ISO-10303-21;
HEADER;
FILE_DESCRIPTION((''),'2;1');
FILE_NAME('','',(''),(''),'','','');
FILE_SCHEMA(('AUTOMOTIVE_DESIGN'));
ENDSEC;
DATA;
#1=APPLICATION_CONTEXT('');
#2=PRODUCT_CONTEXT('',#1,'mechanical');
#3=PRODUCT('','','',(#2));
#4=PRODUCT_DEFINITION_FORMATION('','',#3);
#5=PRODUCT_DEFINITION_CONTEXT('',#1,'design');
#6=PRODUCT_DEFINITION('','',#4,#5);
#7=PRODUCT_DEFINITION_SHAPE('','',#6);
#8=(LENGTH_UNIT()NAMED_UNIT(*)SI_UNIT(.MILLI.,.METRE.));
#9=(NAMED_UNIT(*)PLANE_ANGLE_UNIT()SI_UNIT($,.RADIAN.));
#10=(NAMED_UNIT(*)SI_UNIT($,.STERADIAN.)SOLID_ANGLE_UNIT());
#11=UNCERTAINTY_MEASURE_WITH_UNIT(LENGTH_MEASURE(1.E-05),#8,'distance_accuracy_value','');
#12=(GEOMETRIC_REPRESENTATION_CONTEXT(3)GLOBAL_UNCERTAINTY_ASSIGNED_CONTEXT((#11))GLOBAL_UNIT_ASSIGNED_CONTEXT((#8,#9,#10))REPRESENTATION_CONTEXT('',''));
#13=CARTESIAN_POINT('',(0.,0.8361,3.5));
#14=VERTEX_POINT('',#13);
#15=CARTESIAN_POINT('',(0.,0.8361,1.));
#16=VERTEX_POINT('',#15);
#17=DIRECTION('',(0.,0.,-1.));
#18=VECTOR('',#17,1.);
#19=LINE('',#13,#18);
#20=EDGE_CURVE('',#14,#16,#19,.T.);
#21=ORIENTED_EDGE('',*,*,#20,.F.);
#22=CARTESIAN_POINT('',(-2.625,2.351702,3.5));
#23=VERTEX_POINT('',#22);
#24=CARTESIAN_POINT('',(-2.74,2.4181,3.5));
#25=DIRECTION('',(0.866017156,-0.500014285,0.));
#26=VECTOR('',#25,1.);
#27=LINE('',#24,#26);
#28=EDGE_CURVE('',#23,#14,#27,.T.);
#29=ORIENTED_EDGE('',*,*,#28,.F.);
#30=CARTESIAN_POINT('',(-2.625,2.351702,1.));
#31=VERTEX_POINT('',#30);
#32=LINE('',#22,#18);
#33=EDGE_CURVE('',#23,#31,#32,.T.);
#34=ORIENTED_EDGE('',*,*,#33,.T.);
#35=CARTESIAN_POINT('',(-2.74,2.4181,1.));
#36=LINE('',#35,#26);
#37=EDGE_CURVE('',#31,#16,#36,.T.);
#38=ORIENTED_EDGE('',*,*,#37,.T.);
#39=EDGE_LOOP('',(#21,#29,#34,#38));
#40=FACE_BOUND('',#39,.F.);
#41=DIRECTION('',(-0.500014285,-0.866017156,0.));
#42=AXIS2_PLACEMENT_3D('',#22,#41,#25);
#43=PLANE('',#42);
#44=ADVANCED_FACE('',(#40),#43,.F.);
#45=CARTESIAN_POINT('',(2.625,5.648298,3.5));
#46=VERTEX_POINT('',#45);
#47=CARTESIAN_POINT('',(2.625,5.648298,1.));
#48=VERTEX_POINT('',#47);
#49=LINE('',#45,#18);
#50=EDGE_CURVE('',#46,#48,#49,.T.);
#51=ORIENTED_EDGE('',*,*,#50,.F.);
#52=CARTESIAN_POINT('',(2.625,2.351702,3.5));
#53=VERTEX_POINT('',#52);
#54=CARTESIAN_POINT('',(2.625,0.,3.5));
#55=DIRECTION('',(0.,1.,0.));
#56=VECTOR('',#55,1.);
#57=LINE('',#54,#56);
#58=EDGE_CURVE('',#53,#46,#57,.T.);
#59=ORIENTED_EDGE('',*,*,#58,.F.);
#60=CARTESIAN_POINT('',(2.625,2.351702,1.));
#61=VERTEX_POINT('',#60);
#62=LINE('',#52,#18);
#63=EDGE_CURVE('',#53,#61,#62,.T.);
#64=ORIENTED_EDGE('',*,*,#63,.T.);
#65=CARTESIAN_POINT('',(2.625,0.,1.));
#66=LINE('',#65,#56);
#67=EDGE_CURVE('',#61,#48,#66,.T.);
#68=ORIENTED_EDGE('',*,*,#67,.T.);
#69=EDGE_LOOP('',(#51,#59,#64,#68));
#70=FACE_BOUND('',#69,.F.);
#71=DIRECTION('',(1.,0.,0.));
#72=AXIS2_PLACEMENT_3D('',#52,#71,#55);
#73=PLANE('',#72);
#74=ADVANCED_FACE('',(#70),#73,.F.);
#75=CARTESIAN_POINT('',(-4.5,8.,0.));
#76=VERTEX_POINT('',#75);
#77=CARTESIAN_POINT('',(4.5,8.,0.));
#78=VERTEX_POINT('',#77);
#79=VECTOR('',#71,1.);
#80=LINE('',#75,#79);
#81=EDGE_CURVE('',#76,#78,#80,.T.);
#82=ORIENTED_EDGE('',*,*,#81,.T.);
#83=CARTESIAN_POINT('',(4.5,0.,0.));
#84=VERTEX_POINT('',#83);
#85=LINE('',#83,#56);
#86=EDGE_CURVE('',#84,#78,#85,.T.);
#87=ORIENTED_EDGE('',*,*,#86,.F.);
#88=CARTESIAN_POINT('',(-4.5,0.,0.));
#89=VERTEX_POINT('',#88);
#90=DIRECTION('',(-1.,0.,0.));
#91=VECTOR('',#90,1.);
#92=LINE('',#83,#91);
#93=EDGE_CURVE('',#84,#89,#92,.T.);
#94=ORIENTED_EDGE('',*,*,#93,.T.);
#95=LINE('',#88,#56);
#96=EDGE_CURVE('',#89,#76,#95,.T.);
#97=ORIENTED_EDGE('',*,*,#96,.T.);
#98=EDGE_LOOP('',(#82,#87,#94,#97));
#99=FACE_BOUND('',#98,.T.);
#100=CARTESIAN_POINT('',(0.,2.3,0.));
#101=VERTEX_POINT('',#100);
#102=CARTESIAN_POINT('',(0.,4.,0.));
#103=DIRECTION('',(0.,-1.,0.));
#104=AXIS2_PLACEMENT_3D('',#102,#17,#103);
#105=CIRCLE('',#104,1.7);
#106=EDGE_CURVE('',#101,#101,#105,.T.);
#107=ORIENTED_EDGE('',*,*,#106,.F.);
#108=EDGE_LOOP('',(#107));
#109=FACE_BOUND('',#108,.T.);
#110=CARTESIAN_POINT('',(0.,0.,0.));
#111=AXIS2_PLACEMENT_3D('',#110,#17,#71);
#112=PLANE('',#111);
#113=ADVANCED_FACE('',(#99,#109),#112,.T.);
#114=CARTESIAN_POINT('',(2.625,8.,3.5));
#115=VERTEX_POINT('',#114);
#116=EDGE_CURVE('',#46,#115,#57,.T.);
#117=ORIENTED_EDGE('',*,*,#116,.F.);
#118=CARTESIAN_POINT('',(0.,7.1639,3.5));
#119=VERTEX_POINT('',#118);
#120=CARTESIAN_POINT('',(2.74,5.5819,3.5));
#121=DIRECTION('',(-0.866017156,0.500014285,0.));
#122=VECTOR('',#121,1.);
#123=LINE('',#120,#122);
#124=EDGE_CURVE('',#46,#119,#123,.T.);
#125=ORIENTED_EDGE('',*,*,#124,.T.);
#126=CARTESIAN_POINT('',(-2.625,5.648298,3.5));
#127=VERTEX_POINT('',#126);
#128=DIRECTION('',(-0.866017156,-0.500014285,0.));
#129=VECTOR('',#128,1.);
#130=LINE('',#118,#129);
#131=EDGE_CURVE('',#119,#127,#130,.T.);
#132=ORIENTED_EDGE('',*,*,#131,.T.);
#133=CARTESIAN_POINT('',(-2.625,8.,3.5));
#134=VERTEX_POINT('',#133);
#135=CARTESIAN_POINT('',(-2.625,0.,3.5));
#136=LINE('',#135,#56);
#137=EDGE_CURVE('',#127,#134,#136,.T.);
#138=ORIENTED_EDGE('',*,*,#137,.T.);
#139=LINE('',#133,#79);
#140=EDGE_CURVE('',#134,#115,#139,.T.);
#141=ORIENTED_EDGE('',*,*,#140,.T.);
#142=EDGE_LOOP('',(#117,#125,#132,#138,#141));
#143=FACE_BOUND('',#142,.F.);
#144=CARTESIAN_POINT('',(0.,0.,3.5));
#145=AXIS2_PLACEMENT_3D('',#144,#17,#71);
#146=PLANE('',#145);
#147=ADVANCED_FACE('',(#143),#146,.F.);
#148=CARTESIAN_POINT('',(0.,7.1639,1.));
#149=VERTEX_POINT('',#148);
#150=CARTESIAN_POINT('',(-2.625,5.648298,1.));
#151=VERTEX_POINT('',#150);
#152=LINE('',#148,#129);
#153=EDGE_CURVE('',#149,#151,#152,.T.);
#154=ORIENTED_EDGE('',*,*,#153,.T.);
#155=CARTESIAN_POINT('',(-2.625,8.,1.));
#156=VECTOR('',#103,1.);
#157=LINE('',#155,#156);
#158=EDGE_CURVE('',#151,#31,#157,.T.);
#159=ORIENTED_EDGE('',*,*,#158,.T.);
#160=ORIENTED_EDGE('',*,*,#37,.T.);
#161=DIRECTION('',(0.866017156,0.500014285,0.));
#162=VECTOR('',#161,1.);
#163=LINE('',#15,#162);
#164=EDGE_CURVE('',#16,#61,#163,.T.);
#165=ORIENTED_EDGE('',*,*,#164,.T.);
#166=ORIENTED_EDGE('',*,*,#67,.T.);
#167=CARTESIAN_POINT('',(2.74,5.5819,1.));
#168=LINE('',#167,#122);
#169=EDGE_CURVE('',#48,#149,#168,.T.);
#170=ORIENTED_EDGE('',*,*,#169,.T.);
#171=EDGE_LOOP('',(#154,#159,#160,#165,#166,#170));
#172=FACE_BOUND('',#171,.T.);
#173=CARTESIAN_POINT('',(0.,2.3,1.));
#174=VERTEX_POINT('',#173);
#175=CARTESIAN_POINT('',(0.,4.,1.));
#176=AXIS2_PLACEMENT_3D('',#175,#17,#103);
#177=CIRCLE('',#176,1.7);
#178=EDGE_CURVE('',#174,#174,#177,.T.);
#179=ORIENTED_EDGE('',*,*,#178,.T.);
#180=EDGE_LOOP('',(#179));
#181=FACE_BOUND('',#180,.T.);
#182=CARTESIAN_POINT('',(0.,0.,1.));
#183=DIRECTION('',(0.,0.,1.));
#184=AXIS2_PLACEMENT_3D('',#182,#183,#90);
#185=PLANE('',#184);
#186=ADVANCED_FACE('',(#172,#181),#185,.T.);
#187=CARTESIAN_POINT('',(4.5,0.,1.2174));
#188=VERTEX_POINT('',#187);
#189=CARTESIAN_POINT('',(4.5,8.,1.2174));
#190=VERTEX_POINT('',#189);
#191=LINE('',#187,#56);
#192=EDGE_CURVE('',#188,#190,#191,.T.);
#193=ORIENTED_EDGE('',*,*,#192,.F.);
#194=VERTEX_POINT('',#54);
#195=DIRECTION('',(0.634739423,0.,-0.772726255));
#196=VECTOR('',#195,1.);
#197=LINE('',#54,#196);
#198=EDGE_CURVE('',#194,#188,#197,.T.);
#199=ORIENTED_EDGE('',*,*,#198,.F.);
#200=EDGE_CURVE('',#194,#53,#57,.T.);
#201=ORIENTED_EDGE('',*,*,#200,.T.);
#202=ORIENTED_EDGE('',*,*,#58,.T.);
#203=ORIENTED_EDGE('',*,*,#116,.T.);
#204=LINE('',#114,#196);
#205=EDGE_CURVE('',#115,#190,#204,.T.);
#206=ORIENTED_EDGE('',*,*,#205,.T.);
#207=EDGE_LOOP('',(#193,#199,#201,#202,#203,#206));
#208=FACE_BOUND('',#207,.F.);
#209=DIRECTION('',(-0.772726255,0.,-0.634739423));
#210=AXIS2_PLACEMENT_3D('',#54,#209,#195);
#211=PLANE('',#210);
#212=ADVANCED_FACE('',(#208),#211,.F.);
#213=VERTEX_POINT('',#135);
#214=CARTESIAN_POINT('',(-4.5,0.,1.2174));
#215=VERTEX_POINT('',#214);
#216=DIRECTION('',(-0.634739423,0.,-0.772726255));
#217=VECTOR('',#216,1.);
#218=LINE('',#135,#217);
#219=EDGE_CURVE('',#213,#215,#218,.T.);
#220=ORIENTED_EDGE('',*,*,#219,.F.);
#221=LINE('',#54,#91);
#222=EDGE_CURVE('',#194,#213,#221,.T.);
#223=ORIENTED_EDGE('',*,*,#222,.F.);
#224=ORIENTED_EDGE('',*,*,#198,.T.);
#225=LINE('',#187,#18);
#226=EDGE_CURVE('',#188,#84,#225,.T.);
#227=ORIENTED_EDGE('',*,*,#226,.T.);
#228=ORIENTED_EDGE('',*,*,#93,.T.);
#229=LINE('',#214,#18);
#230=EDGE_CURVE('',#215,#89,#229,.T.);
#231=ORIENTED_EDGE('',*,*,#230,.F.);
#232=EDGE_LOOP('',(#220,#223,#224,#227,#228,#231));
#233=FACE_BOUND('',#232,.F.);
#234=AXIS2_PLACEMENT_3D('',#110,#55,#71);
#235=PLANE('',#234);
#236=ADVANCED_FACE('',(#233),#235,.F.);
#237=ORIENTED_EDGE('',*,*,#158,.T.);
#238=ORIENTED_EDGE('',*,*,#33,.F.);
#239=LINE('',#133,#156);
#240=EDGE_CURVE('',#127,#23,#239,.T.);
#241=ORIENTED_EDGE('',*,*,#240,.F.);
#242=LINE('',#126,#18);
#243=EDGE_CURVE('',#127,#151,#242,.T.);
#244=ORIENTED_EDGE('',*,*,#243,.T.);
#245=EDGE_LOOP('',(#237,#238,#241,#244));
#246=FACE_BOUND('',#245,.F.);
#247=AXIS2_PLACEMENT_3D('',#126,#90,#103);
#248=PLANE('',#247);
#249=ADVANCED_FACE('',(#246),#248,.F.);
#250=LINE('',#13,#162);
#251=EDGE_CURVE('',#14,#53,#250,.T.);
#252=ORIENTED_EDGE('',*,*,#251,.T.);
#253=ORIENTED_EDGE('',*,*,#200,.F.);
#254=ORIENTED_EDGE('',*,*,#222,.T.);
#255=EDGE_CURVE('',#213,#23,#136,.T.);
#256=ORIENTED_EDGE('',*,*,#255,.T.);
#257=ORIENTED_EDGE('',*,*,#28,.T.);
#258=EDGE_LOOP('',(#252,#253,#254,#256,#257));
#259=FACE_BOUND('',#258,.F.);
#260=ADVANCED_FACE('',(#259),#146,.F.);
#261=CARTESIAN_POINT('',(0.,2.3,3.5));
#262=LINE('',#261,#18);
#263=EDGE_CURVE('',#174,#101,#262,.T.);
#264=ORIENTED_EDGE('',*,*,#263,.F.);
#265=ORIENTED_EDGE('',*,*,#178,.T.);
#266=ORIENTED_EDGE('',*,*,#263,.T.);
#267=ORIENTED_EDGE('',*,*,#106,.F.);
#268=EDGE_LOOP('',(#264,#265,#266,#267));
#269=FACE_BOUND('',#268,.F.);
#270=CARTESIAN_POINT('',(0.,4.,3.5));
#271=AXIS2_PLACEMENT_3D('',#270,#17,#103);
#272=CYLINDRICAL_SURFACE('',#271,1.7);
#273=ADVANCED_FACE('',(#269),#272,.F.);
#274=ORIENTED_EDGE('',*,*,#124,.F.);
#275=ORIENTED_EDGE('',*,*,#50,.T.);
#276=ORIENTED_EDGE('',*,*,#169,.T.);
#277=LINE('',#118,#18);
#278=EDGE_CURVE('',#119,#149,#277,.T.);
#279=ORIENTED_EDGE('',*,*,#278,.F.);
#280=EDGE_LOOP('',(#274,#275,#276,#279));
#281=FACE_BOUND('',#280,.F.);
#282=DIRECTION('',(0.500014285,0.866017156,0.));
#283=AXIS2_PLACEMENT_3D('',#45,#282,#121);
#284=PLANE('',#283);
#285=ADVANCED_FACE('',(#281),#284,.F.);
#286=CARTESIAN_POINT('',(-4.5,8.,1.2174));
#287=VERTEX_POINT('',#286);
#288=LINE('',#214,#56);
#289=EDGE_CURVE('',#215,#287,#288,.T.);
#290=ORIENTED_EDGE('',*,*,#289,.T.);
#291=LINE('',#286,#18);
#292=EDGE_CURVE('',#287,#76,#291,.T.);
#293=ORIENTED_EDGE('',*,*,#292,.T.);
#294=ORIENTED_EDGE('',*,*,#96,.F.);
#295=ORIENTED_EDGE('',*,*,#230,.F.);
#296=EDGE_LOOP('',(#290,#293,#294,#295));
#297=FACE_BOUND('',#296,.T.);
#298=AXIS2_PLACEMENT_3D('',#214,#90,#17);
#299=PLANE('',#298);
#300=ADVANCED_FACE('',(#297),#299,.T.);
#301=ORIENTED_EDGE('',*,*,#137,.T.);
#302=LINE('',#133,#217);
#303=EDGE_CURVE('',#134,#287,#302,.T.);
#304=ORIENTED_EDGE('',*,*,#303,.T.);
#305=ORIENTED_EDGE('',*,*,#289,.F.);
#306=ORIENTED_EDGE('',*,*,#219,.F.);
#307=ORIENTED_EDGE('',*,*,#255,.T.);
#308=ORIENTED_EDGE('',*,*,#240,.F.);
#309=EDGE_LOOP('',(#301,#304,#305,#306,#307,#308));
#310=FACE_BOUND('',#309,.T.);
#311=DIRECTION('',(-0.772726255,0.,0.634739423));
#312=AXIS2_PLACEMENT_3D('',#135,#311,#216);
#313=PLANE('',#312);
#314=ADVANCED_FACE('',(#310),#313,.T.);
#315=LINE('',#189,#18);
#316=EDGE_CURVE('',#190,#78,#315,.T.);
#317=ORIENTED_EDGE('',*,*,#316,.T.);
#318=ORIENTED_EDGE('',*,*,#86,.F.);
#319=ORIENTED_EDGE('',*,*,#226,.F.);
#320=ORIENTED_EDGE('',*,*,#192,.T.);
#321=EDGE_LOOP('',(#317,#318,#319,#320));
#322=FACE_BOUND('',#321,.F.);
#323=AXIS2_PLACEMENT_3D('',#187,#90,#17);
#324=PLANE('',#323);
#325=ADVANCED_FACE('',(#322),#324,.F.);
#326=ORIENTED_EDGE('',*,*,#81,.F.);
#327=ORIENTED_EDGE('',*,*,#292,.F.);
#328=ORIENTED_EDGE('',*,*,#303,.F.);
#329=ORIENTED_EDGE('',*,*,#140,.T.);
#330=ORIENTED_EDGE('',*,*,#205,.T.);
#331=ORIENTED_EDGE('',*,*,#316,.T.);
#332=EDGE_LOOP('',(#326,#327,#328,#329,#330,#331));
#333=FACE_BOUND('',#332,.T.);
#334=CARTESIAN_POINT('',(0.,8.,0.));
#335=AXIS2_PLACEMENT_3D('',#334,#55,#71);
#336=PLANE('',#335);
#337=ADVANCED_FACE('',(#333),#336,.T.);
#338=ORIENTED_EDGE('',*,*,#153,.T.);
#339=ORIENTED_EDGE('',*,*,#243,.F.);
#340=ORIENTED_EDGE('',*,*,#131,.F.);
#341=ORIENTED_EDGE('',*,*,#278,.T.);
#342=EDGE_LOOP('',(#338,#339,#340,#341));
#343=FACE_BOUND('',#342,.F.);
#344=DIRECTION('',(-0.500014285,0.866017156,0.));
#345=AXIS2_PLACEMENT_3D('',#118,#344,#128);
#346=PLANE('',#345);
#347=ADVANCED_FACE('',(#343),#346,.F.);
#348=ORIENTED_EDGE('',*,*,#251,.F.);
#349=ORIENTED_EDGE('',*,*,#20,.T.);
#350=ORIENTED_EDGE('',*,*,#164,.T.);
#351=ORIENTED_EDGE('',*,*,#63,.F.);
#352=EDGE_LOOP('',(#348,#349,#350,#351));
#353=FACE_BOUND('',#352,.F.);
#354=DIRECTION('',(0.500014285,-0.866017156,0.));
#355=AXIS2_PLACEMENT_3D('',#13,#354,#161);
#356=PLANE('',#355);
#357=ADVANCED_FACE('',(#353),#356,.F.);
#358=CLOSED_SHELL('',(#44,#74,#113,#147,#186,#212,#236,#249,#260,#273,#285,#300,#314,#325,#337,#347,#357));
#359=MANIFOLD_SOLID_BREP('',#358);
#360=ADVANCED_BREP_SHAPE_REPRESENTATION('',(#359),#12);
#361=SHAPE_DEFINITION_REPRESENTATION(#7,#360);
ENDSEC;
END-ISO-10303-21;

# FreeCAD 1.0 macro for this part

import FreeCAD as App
import Part
import Sketcher

V = App.Vector
Q = App.Units.Quantity


def add_polygon(sketch, points):
    """Adds a closed chain of lines whose ends are joined by coincident constraints."""
    first, n = sketch.GeometryCount, len(points)
    for a, b in zip(points, points[1:] + points[:1]):
        sketch.addGeometry(Part.LineSegment(App.Vector(*a, 0), App.Vector(*b, 0)), False)
    for i in range(n):
        sketch.addConstraint(Sketcher.Constraint("Coincident", first + i, 2, first + (i + 1) % n, 1))

doc = App.newDocument("Part")
body = doc.addObject("PartDesign::Body", "Body")

sketch1 = body.newObject("Sketcher::SketchObject", "Sketch")
sketch1.AttachmentSupport = (doc.getObject("XZ_Plane"), [""])
sketch1.MapMode = "FlatFace"
add_polygon(sketch1, [(4.5, 0), (-4.5, 0), (-4.5, 1.2), (-2.6, 3.5), (2.6, 3.5), (4.5, 1.2)])
sketch1.addConstraint([
    Sketcher.Constraint("Horizontal", 0),
    Sketcher.Constraint("Vertical", 1),
    Sketcher.Constraint("Horizontal", 3),
    Sketcher.Constraint("Vertical", 5),
    Sketcher.Constraint("Symmetric", 0, 2, 5, 2, -1, 1),
    Sketcher.Constraint("Horizontal", 1, 2, 4, 2),
    Sketcher.Constraint("Equal", 2, 4),
    Sketcher.Constraint("DistanceX", 0, 2, -1, 1, Q("4.5 mm")),
    Sketcher.Constraint("DistanceY", -1, 1, 2, 2, Q("3.5 mm")),
    Sketcher.Constraint("DistanceX", 2, 2, -1, 1, Q("2.625 mm")),
    Sketcher.Constraint("Angle", 2, Q("50.5993 deg")),
])
pad1 = body.newObject("PartDesign::Pad", "Pad")
pad1.Profile = sketch1
pad1.Length = 8
pad1.Reversed = True

sketch2 = body.newObject("Sketcher::SketchObject", "Sketch001")
sketch2.AttachmentSupport = (doc.getObject("XY_Plane"), [""])
sketch2.MapMode = "FlatFace"
sketch2.AttachmentOffset = App.Placement(V(0, 0, 3.5), App.Rotation())
add_polygon(sketch2, [(-2.6, 5.6), (-2.6, 2.4), (0, 0.8), (2.6, 2.4), (2.6, 5.6), (0, 7.2)])
add_polygon(sketch2, [(-2.7, -21.9), (-2.7, -25.1), (0, -26.6), (2.7, -25.1), (2.7, -21.9), (0, -20.4)])
sketch2.addConstraint([
    Sketcher.Constraint("Vertical", 0),
    Sketcher.Constraint("Vertical", 3),
    Sketcher.Constraint("Vertical", 6),
    Sketcher.Constraint("Vertical", 9),
    Sketcher.Constraint("Symmetric", 0, 2, 2, 2, -2),
    Sketcher.Constraint("Symmetric", 6, 2, 8, 2, -2),
    Sketcher.Constraint("PointOnObject", 1, 2, -2),
    Sketcher.Constraint("PointOnObject", 4, 2, -2),
    Sketcher.Constraint("PointOnObject", 7, 2, -2),
    Sketcher.Constraint("PointOnObject", 10, 2, -2),
    Sketcher.Constraint("Parallel", 1, 4),
    Sketcher.Constraint("Parallel", 2, 5),
    Sketcher.Constraint("Parallel", 4, 7),
    Sketcher.Constraint("Parallel", 7, 10),
    Sketcher.Constraint("Parallel", 8, 11),
    Sketcher.Constraint("Angle", 1, Q("-30.001 deg")),
    Sketcher.Constraint("DistanceX", 6, 2, -1, 1, Q("2.72 mm")),
    Sketcher.Constraint("DistanceX", 0, 2, 2, 2, Q("5.25 mm")),
    Sketcher.Constraint("DistanceY", 0, 2, 0, 1, Q("3.2966 mm")),
    Sketcher.Constraint("DistanceY", 6, 2, 6, 1, Q("3.1408 mm")),
    Sketcher.Constraint("DistanceY", -1, 1, 1, 2, Q("0.836 mm")),
    Sketcher.Constraint("DistanceY", 6, 2, 0, 2, Q("27.422 mm")),
])
pocket1 = body.newObject("PartDesign::Pocket", "Pocket")
pocket1.Profile = sketch2
pocket1.Length = 2.5

sketch3 = body.newObject("Sketcher::SketchObject", "Sketch002")
sketch3.AttachmentSupport = (doc.getObject("XY_Plane"), [""])
sketch3.MapMode = "FlatFace"
sketch3.AttachmentOffset = App.Placement(V(0, 0, 3.5), App.Rotation())
sketch3.addGeometry(Part.Circle(V(0, 4, 0), V(0, 0, 1), 1.7), False)
sketch3.addConstraint([
    Sketcher.Constraint("PointOnObject", 0, 3, -2),
    Sketcher.Constraint("Diameter", 0, Q("3.4 mm")),
    Sketcher.Constraint("DistanceY", -1, 1, 0, 3, Q("4 mm")),
])
doc.recompute()
hole = body.newObject("PartDesign::Hole", "Hole")
hole.Profile = sketch3
hole.ThreadType = "None"
hole.Diameter = 3.4
hole.DepthType = "Dimension"
hole.Depth = 16
hole.DrillPoint = "Angled"
hole.DrillPointAngle = 118

doc.recompute()
